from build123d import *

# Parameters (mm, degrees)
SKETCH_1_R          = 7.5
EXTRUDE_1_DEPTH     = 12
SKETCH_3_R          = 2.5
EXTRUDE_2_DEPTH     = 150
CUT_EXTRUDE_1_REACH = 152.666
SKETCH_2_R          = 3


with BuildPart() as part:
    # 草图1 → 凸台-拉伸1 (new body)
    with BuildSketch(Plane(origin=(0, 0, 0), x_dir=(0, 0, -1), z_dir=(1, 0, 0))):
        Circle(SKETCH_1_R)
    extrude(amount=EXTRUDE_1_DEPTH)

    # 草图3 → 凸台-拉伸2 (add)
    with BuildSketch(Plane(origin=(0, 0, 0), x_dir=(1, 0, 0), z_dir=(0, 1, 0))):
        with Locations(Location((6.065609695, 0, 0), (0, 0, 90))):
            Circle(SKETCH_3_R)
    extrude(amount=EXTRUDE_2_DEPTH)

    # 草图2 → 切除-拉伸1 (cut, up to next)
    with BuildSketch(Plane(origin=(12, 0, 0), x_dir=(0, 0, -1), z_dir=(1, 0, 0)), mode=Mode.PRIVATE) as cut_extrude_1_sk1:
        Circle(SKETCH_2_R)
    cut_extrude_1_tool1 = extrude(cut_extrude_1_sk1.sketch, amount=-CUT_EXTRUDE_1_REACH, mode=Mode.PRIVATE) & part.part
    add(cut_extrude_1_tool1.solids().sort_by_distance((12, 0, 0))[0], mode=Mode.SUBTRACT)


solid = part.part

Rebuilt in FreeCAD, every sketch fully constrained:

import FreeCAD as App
import Part
import Sketcher
from FreeCAD import Vector
Q = App.Units.Quantity

doc = App.newDocument("Part")
params = doc.addObject("Spreadsheet::Sheet", "Params")
for row, (alias, value) in enumerate([
    ("sketch1_diameter", "15 mm"),
    ("pad1_length", "12 mm"),
    ("sketch2_diameter", "5 mm"),
    ("pad2_length", "150 mm"),
    ("sketch3_diameter", "6 mm"),
], start=1):
    params.set(f"A{row}", alias)
    params.set(f"B{row}", "=" + value)
    params.setAlias(f"B{row}", alias)

body = doc.addObject("PartDesign::Body", "Body")

# Sketch on YZ plane
sketch1 = body.newObject("Sketcher::SketchObject", "Sketch")
sketch1.AttachmentSupport = (doc.getObject("YZ_Plane"), [""])
sketch1.MapMode = "FlatFace"
sketch1.addGeometry(Part.Circle(Vector(0, 0, 0), Vector(0, 0, 1), 7.5), False)
sketch1.addConstraint([
    Sketcher.Constraint("Coincident", 0, 3, -1, 1),
    Sketcher.Constraint("Diameter", 0, Q("15 mm")),
])
sketch1.setExpression("Constraints[1]", "Params.sketch1_diameter")
pad1 = body.newObject("PartDesign::Pad", "Pad")
pad1.Profile = sketch1
pad1.setExpression("Length", "Params.pad1_length")

# Sketch on XZ plane
sketch2 = body.newObject("Sketcher::SketchObject", "Sketch001")
sketch2.AttachmentSupport = (doc.getObject("XZ_Plane"), [""])
sketch2.MapMode = "FlatFace"
sketch2.addGeometry(Part.Circle(Vector(6.06561, 0, 0), Vector(0, 0, 1), 2.5), False)
sketch2.addConstraint([
    Sketcher.Constraint("PointOnObject", 0, 3, -1),
    Sketcher.Constraint("Diameter", 0, Q("5 mm")),
    Sketcher.Constraint("DistanceX", -1, 1, 0, 3, Q("6.06561 mm")),
])
sketch2.setExpression("Constraints[1]", "Params.sketch2_diameter")
pad2 = body.newObject("PartDesign::Pad", "Pad001")
pad2.Profile = sketch2
pad2.setExpression("Length", "Params.pad2_length")
pad2.Reversed = True

# Sketch on YZ plane
sketch3 = body.newObject("Sketcher::SketchObject", "Sketch002")
sketch3.AttachmentSupport = (doc.getObject("YZ_Plane"), [""])
sketch3.MapMode = "FlatFace"
sketch3.AttachmentOffset = App.Placement(Vector(0, 0, 12), App.Rotation())
sketch3.addGeometry(Part.Circle(Vector(0, 0, 0), Vector(0, 0, 1), 3), False)
sketch3.addConstraint([
    Sketcher.Constraint("Coincident", 0, 3, -1, 1),
    Sketcher.Constraint("Diameter", 0, Q("6 mm")),
])
sketch3.setExpression("Constraints[1]", "Params.sketch3_diameter")
pocket1 = body.newObject("PartDesign::Pocket", "Pocket")
pocket1.Profile = sketch3
pocket1.Type = "UpToFirst"

doc.recompute()
